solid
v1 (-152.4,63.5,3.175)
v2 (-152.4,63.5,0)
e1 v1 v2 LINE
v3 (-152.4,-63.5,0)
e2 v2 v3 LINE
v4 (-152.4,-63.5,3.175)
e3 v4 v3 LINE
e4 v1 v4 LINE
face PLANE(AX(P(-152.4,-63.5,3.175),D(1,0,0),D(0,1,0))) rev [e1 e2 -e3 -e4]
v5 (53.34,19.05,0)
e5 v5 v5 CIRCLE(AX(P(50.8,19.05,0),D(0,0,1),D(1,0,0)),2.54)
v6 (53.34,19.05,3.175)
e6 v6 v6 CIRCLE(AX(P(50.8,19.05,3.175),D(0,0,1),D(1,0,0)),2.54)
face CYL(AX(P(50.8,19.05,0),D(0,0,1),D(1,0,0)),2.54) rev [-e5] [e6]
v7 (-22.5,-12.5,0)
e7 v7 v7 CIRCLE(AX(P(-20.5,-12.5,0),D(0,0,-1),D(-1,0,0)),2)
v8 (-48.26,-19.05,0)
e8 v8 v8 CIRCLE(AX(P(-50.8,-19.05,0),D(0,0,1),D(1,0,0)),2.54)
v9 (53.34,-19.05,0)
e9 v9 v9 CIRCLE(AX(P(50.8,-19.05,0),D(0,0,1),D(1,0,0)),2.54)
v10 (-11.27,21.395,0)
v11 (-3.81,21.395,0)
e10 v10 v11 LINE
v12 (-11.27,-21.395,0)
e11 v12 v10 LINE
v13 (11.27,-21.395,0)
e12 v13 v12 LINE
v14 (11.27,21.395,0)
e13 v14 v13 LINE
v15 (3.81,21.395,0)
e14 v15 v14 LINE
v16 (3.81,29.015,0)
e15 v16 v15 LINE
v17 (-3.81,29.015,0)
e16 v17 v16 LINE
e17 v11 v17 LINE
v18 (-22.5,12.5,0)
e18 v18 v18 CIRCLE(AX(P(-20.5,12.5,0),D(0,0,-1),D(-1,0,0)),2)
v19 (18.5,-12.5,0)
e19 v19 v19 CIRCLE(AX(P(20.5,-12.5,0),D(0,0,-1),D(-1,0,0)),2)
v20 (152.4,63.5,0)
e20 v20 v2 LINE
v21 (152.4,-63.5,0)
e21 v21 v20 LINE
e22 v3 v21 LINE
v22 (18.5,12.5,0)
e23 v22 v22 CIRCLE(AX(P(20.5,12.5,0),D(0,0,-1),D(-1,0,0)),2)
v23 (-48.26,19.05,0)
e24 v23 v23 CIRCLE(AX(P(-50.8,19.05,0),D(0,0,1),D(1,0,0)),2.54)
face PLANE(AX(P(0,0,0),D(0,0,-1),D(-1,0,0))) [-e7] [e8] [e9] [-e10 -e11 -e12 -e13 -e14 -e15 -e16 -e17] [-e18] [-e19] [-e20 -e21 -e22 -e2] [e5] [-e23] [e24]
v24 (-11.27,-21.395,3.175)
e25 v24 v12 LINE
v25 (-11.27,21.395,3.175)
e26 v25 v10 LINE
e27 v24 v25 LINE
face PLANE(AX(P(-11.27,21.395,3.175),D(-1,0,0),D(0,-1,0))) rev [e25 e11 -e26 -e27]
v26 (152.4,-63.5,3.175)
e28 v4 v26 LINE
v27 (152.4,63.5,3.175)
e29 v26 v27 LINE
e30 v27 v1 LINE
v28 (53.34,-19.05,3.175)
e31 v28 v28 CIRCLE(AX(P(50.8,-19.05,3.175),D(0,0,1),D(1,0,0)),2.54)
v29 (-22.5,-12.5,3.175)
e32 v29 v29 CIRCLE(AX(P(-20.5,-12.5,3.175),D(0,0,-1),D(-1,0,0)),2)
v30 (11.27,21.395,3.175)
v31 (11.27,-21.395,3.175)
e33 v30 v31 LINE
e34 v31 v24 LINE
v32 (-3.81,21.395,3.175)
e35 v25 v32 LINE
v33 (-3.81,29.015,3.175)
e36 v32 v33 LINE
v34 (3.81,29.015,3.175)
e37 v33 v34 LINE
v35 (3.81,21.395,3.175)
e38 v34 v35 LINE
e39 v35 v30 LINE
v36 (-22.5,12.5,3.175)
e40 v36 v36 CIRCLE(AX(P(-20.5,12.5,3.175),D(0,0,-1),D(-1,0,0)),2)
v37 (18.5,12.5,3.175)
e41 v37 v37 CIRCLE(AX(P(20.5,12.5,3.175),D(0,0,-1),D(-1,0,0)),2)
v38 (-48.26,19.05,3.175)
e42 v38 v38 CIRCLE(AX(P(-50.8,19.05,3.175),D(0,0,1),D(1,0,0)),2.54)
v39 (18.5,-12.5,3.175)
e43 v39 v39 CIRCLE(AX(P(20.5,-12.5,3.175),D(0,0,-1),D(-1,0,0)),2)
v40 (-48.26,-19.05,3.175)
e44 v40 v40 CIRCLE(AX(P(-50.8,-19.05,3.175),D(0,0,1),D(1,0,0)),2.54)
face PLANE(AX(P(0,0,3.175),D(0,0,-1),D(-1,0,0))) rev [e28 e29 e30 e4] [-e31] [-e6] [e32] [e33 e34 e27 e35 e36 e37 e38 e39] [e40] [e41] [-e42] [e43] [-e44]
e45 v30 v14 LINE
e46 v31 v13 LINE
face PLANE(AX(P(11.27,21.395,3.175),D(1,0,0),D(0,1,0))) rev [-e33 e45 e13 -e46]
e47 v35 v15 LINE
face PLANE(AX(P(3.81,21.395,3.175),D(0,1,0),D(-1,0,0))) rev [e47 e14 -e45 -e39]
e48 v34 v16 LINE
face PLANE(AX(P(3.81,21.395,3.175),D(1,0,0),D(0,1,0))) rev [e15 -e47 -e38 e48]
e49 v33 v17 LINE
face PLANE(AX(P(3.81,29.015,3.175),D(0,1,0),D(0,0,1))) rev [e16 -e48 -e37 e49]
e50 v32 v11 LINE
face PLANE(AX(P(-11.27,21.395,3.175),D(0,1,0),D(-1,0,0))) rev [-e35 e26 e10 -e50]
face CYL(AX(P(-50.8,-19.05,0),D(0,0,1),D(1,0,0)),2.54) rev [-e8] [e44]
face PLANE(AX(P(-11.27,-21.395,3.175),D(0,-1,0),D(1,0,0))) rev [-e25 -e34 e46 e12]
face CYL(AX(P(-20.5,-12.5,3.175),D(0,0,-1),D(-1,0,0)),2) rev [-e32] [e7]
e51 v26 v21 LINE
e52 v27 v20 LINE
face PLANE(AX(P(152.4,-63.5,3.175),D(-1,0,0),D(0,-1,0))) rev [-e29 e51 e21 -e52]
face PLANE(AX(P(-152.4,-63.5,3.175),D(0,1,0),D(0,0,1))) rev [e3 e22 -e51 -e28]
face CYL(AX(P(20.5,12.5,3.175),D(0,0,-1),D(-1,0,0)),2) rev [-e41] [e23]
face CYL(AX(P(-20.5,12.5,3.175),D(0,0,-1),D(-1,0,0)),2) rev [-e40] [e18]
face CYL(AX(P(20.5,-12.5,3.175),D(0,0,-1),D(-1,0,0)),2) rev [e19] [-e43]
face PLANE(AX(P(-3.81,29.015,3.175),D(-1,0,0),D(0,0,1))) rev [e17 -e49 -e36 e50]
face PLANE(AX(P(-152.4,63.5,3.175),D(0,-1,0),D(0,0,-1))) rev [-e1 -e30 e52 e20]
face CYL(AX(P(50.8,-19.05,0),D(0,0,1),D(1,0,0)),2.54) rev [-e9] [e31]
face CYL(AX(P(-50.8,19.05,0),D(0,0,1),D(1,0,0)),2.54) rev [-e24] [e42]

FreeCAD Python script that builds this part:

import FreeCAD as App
import Part
import Sketcher
from FreeCAD import Vector
Q = App.Units.Quantity


def add_polygon(sketch, points):
    """Adds a closed chain of lines whose ends are joined by coincident constraints."""
    first, n = sketch.GeometryCount, len(points)
    for a, b in zip(points, points[1:] + points[:1]):
        sketch.addGeometry(Part.LineSegment(App.Vector(*a, 0), App.Vector(*b, 0)), False)
    for i in range(n):
        sketch.addConstraint(Sketcher.Constraint("Coincident", first + i, 2, first + (i + 1) % n, 1))

doc = App.newDocument("Part")
body = doc.addObject("PartDesign::Body", "Body")

sketch1 = body.newObject("Sketcher::SketchObject", "Sketch")
sketch1.AttachmentSupport = (doc.getObject("XY_Plane"), [""])
sketch1.MapMode = "FlatFace"
add_polygon(sketch1, [(-152, 64), (-152, -64), (152, -64), (152, 64)])
sketch1.addConstraint([
    Sketcher.Constraint("Vertical", 0),
    Sketcher.Constraint("Horizontal", 1),
    Sketcher.Constraint("Vertical", 2),
    Sketcher.Constraint("Horizontal", 3),
    Sketcher.Constraint("Symmetric", 0, 2, 2, 2, -1, 1),
    Sketcher.Constraint("DistanceX", 1, 1, 1, 2, Q("12 in")),
    Sketcher.Constraint("DistanceY", 0, 2, 0, 1, Q("5 in")),
])
pad1 = body.newObject("PartDesign::Pad", "Pad")
pad1.Profile = sketch1
pad1.Length = Q("0.125 in")

sketch2 = body.newObject("Sketcher::SketchObject", "Sketch001")
sketch2.AttachmentSupport = (doc.getObject("XY_Plane"), [""])
sketch2.MapMode = "FlatFace"
sketch2.AttachmentOffset = App.Placement(Vector(0, 0, 0.125 * 25.4), App.Rotation())
sketch2.addGeometry([
    Part.Circle(Vector(50.8, 19.1, 0), Vector(0, 0, 1), 2.5),
    Part.Circle(Vector(50.8, -19.1, 0), Vector(0, 0, 1), 2.5),
    Part.Circle(Vector(-50.8, -19.1, 0), Vector(0, 0, 1), 2.5),
    Part.Circle(Vector(-50.8, 19.1, 0), Vector(0, 0, 1), 2.5),
], False)
sketch2.addConstraint([
    Sketcher.Constraint("Equal", 0, 1),
    Sketcher.Constraint("Equal", 1, 2),
    Sketcher.Constraint("Equal", 2, 3),
    Sketcher.Constraint("Symmetric", 0, 3, 2, 3, -1, 1),
    Sketcher.Constraint("Symmetric", 1, 3, 3, 3, -1, 1),
    Sketcher.Constraint("Symmetric", 1, 3, 2, 3, -2),
    Sketcher.Constraint("Diameter", 0, Q("0.2 in")),
    Sketcher.Constraint("DistanceX", -1, 1, 0, 3, Q("2 in")),
    Sketcher.Constraint("DistanceY", 1, 3, 0, 3, Q("1.5 in")),
])
pocket1 = body.newObject("PartDesign::Pocket", "Pocket")
pocket1.Profile = sketch2
pocket1.Type = "ThroughAll"

sketch3 = body.newObject("Sketcher::SketchObject", "Sketch002")
sketch3.AttachmentSupport = (doc.getObject("XY_Plane"), [""])
sketch3.MapMode = "FlatFace"
sketch3.addGeometry(Part.Circle(Vector(20.5, 12.5, 0), Vector(0, 0, 1), 2), False)
sketch3.addGeometry(Part.Circle(Vector(-20.5, -12.5, 0), Vector(0, 0, 1), 2), False)
sketch3.addGeometry(Part.Circle(Vector(-20.5, 12.5, 0), Vector(0, 0, 1), 2), False)
sketch3.addGeometry(Part.Circle(Vector(20.5, -12.5, 0), Vector(0, 0, 1), 2), False)
add_polygon(sketch3, [(-11.3, -21.4), (-11.3, 21.4), (-3.8, 21.4), (-3.8, 29), (3.8, 29), (3.8, 21.4), (11.3, 21.4), (11.3, -21.4)])
sketch3.addConstraint([
    Sketcher.Constraint("Vertical", 4),
    Sketcher.Constraint("Horizontal", 5),
    Sketcher.Constraint("Vertical", 6),
    Sketcher.Constraint("Horizontal", 7),
    Sketcher.Constraint("Vertical", 8),
    Sketcher.Constraint("Horizontal", 9),
    Sketcher.Constraint("Vertical", 10),
    Sketcher.Constraint("Horizontal", 11),
    Sketcher.Constraint("Equal", 0, 1),
    Sketcher.Constraint("Equal", 1, 2),
    Sketcher.Constraint("Equal", 2, 3),
    Sketcher.Constraint("Symmetric", 0, 3, 1, 3, -1, 1),
    Sketcher.Constraint("Symmetric", 2, 3, 3, 3, -1, 1),
    Sketcher.Constraint("Symmetric", 4, 2, 10, 2, -1, 1),
    Sketcher.Constraint("Symmetric", 0, 3, 2, 3, -2),
    Sketcher.Constraint("Symmetric", 5, 2, 8, 2, -2),
    Sketcher.Constraint("Equal", 7, 6),
    Sketcher.Constraint("DistanceX", 7, 1, 7, 2, Q("0.3 in")),
    Sketcher.Constraint("Diameter", 0, Q("4 mm")),
    Sketcher.Constraint("DistanceX", 5, 1, 5, 2, Q("7.46 mm")),
    Sketcher.Constraint("DistanceY", 4, 1, 4, 2, Q("42.79 mm")),
    Sketcher.Constraint("DistanceX", -1, 1, 0, 3, Q("20.5 mm")),
    Sketcher.Constraint("DistanceY", -1, 1, 0, 3, Q("12.5 mm")),
])
pocket2 = body.newObject("PartDesign::Pocket", "Pocket001")
pocket2.Profile = sketch3
pocket2.Type = "ThroughAll"
pocket2.Midplane = True

doc.recompute()
